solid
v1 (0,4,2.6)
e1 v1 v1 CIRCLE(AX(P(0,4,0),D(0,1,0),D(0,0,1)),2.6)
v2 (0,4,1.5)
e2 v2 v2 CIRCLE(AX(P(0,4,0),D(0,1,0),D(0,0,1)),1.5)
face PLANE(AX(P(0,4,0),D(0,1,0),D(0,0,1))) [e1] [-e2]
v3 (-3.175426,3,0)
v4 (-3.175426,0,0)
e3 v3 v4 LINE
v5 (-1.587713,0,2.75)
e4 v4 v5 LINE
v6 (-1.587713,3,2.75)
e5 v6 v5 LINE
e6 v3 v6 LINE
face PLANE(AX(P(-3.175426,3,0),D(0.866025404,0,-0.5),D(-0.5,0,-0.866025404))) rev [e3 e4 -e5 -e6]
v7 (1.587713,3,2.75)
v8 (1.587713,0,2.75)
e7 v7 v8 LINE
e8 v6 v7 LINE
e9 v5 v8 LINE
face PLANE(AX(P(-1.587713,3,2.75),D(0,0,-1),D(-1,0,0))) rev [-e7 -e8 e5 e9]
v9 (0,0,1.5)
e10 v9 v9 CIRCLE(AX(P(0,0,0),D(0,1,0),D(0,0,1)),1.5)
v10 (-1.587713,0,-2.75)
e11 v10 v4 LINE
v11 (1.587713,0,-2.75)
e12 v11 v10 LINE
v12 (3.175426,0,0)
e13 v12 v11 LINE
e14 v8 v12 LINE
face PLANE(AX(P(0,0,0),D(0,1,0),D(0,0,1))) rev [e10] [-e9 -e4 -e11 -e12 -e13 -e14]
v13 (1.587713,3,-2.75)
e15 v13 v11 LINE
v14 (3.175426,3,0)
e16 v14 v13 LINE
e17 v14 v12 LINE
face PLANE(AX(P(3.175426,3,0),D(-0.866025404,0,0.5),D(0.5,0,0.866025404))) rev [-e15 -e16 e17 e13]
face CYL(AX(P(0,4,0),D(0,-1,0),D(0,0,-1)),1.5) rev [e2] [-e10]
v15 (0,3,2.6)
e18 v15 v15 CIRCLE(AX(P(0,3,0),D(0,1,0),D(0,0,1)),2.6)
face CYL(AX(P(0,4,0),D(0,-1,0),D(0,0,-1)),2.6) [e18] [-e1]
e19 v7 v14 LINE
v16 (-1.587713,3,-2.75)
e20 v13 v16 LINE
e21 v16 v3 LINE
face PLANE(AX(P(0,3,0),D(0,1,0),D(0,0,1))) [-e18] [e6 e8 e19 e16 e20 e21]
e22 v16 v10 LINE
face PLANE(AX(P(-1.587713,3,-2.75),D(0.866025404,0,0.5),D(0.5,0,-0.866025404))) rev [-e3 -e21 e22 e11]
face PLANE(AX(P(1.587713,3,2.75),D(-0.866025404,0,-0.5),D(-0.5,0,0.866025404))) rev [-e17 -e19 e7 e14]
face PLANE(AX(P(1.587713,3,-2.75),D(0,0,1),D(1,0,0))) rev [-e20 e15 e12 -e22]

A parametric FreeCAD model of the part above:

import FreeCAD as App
import Part
import Sketcher
Q = App.Units.Quantity


def add_polygon(sketch, points):
    """Adds a closed chain of lines whose ends are joined by coincident constraints."""
    first, n = sketch.GeometryCount, len(points)
    for a, b in zip(points, points[1:] + points[:1]):
        sketch.addGeometry(Part.LineSegment(App.Vector(*a, 0), App.Vector(*b, 0)), False)
    for i in range(n):
        sketch.addConstraint(Sketcher.Constraint("Coincident", first + i, 2, first + (i + 1) % n, 1))

doc = App.newDocument("Part")
body = doc.addObject("PartDesign::Body", "Body")

sketch1 = doc.addObject("Sketcher::SketchObject", "Sketch")
body.addObject(sketch1)
sketch1.AttachmentSupport = (doc.XZ_Plane, [""])
sketch1.MapMode = "FlatFace"
add_polygon(sketch1, [(3.175426, 0), (1.587713, -2.75), (-1.587713, -2.75), (-3.175426, 0), (-1.587713, 2.75), (1.587713, 2.75)])
sketch1.addConstraint(Sketcher.Constraint("Horizontal", 1))
sketch1.addConstraint(Sketcher.Constraint("Horizontal", 4))
sketch1.addConstraint(Sketcher.Constraint("Symmetric", 0, 2, 3, 2, -1, 1))
sketch1.addConstraint(Sketcher.Constraint("Symmetric", 2, 2, 5, 2, -1, 1))
sketch1.addConstraint(Sketcher.Constraint("PointOnObject", 2, 2, -1))
sketch1.addConstraint(Sketcher.Constraint("Parallel", 2, 5))
sketch1.addConstraint(Sketcher.Constraint("Vertical", 1, 2, 3, 2))
sketch1.addConstraint(Sketcher.Constraint("Angle", 0, Q("-120 deg")))
sketch1.addConstraint(Sketcher.Constraint("DistanceY", 1, 2, 3, 2, 5.5))
sketch1.addConstraint(Sketcher.Constraint("DistanceX", 1, 2, 1, 1, 3.175426))
pad1 = doc.addObject("PartDesign::Pad", "Pad")
body.addObject(pad1)
pad1.Profile = sketch1
pad1.Length = 3
pad1.Reversed = True

sketch2 = doc.addObject("Sketcher::SketchObject", "Sketch001")
body.addObject(sketch2)
sketch2.AttachmentSupport = (doc.XZ_Plane, [""])
sketch2.MapMode = "FlatFace"
sketch2.AttachmentOffset = App.Placement(App.Vector(0, 0, -3), App.Rotation())
sketch2.addGeometry(Part.Circle(App.Vector(0, 0, 0), App.Vector(0, 0, 1), 2.6), False)
sketch2.addGeometry(Part.Circle(App.Vector(0, 0, 0), App.Vector(0, 0, 1), 1.5), False)
sketch2.addConstraint(Sketcher.Constraint("Coincident", 0, 3, -1, 1))
sketch2.addConstraint(Sketcher.Constraint("Coincident", 1, 3, -1, 1))
sketch2.addConstraint(Sketcher.Constraint("Diameter", 1, 3.0))
sketch2.addConstraint(Sketcher.Constraint("Diameter", 0, 5.2))
pad2 = doc.addObject("PartDesign::Pad", "Pad001")
body.addObject(pad2)
pad2.Profile = sketch2
pad2.Length = 1
pad2.Reversed = True

sketch3 = doc.addObject("Sketcher::SketchObject", "Sketch002")
body.addObject(sketch3)
sketch3.AttachmentSupport = (doc.XZ_Plane, [""])
sketch3.MapMode = "FlatFace"
sketch3.addGeometry(Part.Circle(App.Vector(0, 0, 0), App.Vector(0, 0, 1), 1.5), False)
sketch3.addConstraint(Sketcher.Constraint("Coincident", 0, 3, -1, 1))
sketch3.addConstraint(Sketcher.Constraint("Diameter", 0, 3.0))
pocket1 = doc.addObject("PartDesign::Pocket", "Pocket")
body.addObject(pocket1)
pocket1.Profile = sketch3
pocket1.Type = "ThroughAll"

doc.recompute()
